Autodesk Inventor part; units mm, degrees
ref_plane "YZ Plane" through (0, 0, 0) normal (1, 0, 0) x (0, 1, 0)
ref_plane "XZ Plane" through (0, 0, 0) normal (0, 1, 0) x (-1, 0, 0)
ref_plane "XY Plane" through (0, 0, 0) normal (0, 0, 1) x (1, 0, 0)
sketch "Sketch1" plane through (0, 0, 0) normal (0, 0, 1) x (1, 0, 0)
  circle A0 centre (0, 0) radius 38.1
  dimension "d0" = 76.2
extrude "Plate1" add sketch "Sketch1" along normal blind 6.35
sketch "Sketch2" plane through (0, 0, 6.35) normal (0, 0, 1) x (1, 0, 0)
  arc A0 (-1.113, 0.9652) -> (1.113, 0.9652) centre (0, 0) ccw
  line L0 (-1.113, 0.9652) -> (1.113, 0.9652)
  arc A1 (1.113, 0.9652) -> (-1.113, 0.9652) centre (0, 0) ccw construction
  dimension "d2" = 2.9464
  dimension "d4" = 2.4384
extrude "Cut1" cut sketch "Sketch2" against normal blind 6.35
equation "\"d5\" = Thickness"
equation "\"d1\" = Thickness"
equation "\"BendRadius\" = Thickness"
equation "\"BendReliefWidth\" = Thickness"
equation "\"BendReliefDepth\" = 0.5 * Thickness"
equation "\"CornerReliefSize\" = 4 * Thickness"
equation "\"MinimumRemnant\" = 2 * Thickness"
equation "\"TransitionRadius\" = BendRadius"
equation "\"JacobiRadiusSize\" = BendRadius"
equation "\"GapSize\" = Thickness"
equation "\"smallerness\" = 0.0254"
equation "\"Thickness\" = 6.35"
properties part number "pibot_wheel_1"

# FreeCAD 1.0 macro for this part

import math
import FreeCAD as App
import Part
import Sketcher
Q = App.Units.Quantity

doc = App.newDocument("Part")
body = doc.addObject("PartDesign::Body", "Body")

# Sketch on XY plane
sketch1 = body.newObject("Sketcher::SketchObject", "Sketch")
sketch1.AttachmentSupport = (doc.getObject("XY_Plane"), [""])
sketch1.MapMode = "FlatFace"
sketch1.addGeometry(Part.Circle(App.Vector(0, 0, 0), App.Vector(0, 0, 1), 38), False)
sketch1.addConstraint(Sketcher.Constraint("Coincident", 0, 3, -1, 1))
sketch1.addConstraint(Sketcher.Constraint("Diameter", 0, Q("3 in")))
pad1 = body.newObject("PartDesign::Pad", "Pad")
pad1.Profile = sketch1
pad1.Length = Q("0.25 in")

# Sketch on XY plane
sketch2 = body.newObject("Sketcher::SketchObject", "Sketch001")
sketch2.AttachmentSupport = (doc.getObject("XY_Plane"), [""])
sketch2.MapMode = "FlatFace"
sketch2.AttachmentOffset = App.Placement(App.Vector(0, 0, 0.25 * 25.4), App.Rotation())
sketch2.addGeometry(Part.LineSegment(App.Vector(1.1, 1, 0), App.Vector(-1.1, 1, 0)), False)
sketch2.addGeometry(Part.ArcOfCircle(Part.Circle(App.Vector(0, 0, 0), App.Vector(0, 0, 1), 1.5), math.radians(139), math.radians(401)), False)
sketch2.addConstraint(Sketcher.Constraint("Coincident", 0, 1, 1, 2))
sketch2.addConstraint(Sketcher.Constraint("Coincident", 1, 1, 0, 2))
sketch2.addConstraint(Sketcher.Constraint("Horizontal", 0))
sketch2.addConstraint(Sketcher.Constraint("Coincident", 1, 3, -1, 1))
sketch2.addConstraint(Sketcher.Constraint("Radius", 1, Q("0.058 in")))
sketch2.addConstraint(Sketcher.Constraint("DistanceY", -1, 1, 0, 1, Q("0.038 in")))
pocket1 = body.newObject("PartDesign::Pocket", "Pocket")
pocket1.Profile = sketch2
pocket1.Length = Q("0.25 in")

doc.recompute()
